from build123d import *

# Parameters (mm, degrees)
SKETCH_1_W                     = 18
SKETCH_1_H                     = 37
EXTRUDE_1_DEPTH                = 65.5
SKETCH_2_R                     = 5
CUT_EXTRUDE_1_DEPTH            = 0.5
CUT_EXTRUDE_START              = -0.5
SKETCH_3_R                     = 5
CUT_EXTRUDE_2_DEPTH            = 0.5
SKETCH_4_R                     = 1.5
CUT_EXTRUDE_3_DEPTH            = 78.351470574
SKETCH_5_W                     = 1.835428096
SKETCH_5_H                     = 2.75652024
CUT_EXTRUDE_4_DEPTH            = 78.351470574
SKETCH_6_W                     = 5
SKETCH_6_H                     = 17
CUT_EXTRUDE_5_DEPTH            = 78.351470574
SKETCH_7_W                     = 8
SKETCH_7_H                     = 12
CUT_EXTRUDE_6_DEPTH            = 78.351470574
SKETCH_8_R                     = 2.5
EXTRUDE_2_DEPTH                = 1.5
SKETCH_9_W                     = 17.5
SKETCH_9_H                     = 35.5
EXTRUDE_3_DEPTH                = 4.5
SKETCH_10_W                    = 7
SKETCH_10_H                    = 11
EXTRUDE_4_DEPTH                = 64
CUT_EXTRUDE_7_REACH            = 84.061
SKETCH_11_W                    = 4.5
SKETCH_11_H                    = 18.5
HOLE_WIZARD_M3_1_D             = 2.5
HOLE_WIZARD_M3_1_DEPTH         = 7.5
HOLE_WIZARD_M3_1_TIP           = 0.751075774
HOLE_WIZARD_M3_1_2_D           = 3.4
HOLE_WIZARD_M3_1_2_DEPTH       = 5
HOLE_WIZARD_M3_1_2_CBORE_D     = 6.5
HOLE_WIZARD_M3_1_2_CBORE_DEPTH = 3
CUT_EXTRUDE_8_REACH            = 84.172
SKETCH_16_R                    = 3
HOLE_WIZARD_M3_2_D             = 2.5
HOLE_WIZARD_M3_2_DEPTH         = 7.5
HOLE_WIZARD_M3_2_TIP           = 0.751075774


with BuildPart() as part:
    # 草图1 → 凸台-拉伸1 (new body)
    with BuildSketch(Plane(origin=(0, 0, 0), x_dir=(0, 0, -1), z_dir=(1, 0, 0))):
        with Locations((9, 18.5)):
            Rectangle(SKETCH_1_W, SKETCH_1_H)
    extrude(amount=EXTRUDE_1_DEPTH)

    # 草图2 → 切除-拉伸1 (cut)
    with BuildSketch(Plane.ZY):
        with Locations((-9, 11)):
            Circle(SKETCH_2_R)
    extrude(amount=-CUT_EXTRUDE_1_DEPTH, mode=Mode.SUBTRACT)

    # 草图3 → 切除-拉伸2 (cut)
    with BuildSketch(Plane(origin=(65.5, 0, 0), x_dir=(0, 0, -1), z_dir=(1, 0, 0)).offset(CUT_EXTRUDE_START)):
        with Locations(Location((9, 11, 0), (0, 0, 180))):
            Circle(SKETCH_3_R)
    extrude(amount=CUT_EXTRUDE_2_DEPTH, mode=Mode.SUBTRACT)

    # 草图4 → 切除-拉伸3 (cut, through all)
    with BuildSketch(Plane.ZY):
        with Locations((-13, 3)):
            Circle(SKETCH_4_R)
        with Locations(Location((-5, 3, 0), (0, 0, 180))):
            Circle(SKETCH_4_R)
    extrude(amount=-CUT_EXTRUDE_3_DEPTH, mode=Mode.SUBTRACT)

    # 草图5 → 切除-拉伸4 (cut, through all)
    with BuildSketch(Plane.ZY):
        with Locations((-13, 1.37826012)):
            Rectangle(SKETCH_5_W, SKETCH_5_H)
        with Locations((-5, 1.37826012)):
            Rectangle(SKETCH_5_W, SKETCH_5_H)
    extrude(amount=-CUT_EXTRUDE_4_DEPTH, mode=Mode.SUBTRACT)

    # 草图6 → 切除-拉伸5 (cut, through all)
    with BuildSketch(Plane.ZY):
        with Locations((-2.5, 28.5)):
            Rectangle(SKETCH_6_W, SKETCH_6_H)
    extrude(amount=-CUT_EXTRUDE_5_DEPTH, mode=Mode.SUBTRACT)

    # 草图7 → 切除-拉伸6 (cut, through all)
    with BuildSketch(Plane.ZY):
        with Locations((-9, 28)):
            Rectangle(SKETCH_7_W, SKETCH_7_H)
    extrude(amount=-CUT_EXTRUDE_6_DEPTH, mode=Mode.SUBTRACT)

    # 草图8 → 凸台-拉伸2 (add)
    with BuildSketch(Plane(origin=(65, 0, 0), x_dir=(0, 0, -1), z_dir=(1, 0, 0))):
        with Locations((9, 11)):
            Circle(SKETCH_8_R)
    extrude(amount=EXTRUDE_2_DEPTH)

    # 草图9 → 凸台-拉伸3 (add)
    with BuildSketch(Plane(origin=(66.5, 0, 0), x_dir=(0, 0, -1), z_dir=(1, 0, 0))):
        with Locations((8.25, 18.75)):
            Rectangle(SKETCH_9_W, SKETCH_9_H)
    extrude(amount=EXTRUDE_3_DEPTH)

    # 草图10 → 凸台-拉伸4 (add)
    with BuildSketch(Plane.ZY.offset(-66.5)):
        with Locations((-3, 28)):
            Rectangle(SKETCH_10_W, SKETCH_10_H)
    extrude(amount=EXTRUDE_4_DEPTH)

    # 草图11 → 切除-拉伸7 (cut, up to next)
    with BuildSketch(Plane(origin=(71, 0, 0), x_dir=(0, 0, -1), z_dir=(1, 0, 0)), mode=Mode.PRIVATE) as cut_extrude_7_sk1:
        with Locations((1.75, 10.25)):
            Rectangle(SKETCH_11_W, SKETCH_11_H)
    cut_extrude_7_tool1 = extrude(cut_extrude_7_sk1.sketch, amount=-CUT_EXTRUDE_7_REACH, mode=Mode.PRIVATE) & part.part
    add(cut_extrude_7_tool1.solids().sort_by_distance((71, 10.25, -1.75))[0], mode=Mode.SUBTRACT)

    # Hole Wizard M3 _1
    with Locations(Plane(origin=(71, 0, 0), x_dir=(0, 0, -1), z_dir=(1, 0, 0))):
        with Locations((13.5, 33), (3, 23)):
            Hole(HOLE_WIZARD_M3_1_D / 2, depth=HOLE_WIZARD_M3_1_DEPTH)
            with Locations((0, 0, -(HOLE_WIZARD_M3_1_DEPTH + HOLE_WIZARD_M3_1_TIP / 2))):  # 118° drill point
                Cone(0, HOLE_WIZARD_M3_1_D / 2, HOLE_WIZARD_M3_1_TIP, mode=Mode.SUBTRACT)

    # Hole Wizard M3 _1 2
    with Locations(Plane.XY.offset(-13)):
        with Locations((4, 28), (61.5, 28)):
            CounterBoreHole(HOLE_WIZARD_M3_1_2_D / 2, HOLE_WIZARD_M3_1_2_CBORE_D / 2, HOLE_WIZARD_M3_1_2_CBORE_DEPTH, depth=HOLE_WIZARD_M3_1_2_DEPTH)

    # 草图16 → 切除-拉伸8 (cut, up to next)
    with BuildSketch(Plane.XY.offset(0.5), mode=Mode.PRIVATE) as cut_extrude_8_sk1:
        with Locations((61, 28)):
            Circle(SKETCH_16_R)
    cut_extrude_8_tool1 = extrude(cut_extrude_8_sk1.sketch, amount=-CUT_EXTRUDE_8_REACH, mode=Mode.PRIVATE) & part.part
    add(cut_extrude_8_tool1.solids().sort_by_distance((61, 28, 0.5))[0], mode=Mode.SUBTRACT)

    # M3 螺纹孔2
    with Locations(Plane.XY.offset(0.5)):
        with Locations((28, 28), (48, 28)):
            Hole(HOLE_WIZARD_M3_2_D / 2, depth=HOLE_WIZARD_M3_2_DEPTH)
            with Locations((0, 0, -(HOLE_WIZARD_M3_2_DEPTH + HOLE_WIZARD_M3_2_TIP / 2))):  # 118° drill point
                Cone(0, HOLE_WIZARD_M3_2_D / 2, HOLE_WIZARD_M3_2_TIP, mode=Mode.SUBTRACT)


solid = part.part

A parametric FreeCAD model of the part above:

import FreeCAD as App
import Part
import Sketcher

doc = App.newDocument("Part")
body = doc.addObject("PartDesign::Body", "Body")

# Sketch on YZ plane
sketch1 = body.newObject("Sketcher::SketchObject", "Sketch")
sketch1.AttachmentSupport = (doc.getObject("YZ_Plane"), [""])
sketch1.MapMode = "FlatFace"
sketch1.addGeometry(Part.LineSegment(App.Vector(37, 0, 0), App.Vector(0, 0, 0)), False)
sketch1.addGeometry(Part.LineSegment(App.Vector(0, 0, 0), App.Vector(0, -18, 0)), False)
sketch1.addGeometry(Part.LineSegment(App.Vector(0, -18, 0), App.Vector(37, -18, 0)), False)
sketch1.addGeometry(Part.LineSegment(App.Vector(37, -18, 0), App.Vector(37, 0, 0)), False)
sketch1.addConstraint(Sketcher.Constraint("Coincident", 0, 2, 1, 1))
sketch1.addConstraint(Sketcher.Constraint("Coincident", 1, 2, 2, 1))
sketch1.addConstraint(Sketcher.Constraint("Coincident", 2, 2, 3, 1))
sketch1.addConstraint(Sketcher.Constraint("Coincident", 3, 2, 0, 1))
sketch1.addConstraint(Sketcher.Constraint("Horizontal", 0))
sketch1.addConstraint(Sketcher.Constraint("Vertical", 1))
sketch1.addConstraint(Sketcher.Constraint("Horizontal", 2))
sketch1.addConstraint(Sketcher.Constraint("Vertical", 3))
sketch1.addConstraint(Sketcher.Constraint("Coincident", 0, 2, -1, 1))
sketch1.addConstraint(Sketcher.Constraint("DistanceX", 0, 2, 0, 1, 37.0))
sketch1.addConstraint(Sketcher.Constraint("DistanceY", 1, 2, 1, 1, 18.0))
pad1 = body.newObject("PartDesign::Pad", "Pad")
pad1.Profile = sketch1
pad1.Length = 65.5

# Sketch on YZ plane
sketch2 = body.newObject("Sketcher::SketchObject", "Sketch001")
sketch2.AttachmentSupport = (doc.getObject("YZ_Plane"), [""])
sketch2.MapMode = "FlatFace"
sketch2.addGeometry(Part.Circle(App.Vector(11, -9, 0), App.Vector(0, 0, 1), 5), False)
sketch2.addConstraint(Sketcher.Constraint("Diameter", 0, 10.0))
sketch2.addConstraint(Sketcher.Constraint("DistanceX", -1, 1, 0, 3, 11.0))
sketch2.addConstraint(Sketcher.Constraint("DistanceY", 0, 3, -1, 1, 9.0))
pocket1 = body.newObject("PartDesign::Pocket", "Pocket")
pocket1.Profile = sketch2
pocket1.Length = 0.5
pocket1.Reversed = True

# Sketch on YZ plane
sketch3 = body.newObject("Sketcher::SketchObject", "Sketch002")
sketch3.AttachmentSupport = (doc.getObject("YZ_Plane"), [""])
sketch3.MapMode = "FlatFace"
sketch3.AttachmentOffset = App.Placement(App.Vector(0, 0, 65), App.Rotation())
sketch3.addGeometry(Part.Circle(App.Vector(11, -9, 0), App.Vector(0, 0, 1), 5), False)
sketch3.addConstraint(Sketcher.Constraint("Diameter", 0, 10.0))
sketch3.addConstraint(Sketcher.Constraint("DistanceX", -1, 1, 0, 3, 11.0))
sketch3.addConstraint(Sketcher.Constraint("DistanceY", 0, 3, -1, 1, 9.0))
pocket2 = body.newObject("PartDesign::Pocket", "Pocket001")
pocket2.Profile = sketch3
pocket2.Length = 0.5
pocket2.Reversed = True

# Sketch on YZ plane
sketch4 = body.newObject("Sketcher::SketchObject", "Sketch003")
sketch4.AttachmentSupport = (doc.getObject("YZ_Plane"), [""])
sketch4.MapMode = "FlatFace"
sketch4.addGeometry(Part.Circle(App.Vector(3, -13, 0), App.Vector(0, 0, 1), 1.5), False)
sketch4.addGeometry(Part.Circle(App.Vector(3, -5, 0), App.Vector(0, 0, 1), 1.5), False)
sketch4.addConstraint(Sketcher.Constraint("Equal", 0, 1))
sketch4.addConstraint(Sketcher.Constraint("Vertical", 0, 3, 1, 3))
sketch4.addConstraint(Sketcher.Constraint("Diameter", 0, 3.0))
sketch4.addConstraint(Sketcher.Constraint("DistanceX", -1, 1, 0, 3, 3.0))
sketch4.addConstraint(Sketcher.Constraint("DistanceY", 0, 3, -1, 1, 13.0))
sketch4.addConstraint(Sketcher.Constraint("DistanceY", 1, 3, -1, 1, 5.0))
pocket3 = body.newObject("PartDesign::Pocket", "Pocket002")
pocket3.Profile = sketch4
pocket3.Type = "ThroughAll"
pocket3.Reversed = True

# Sketch on YZ plane
sketch5 = body.newObject("Sketcher::SketchObject", "Sketch004")
sketch5.AttachmentSupport = (doc.getObject("YZ_Plane"), [""])
sketch5.MapMode = "FlatFace"
sketch5.addGeometry(Part.LineSegment(App.Vector(2.8, -13.9, 0), App.Vector(0, -13.9, 0)), False)
sketch5.addGeometry(Part.LineSegment(App.Vector(0, -13.9, 0), App.Vector(0, -12.1, 0)), False)
sketch5.addGeometry(Part.LineSegment(App.Vector(0, -12.1, 0), App.Vector(2.8, -12.1, 0)), False)
sketch5.addGeometry(Part.LineSegment(App.Vector(2.8, -12.1, 0), App.Vector(2.8, -13.9, 0)), False)
sketch5.addGeometry(Part.LineSegment(App.Vector(2.8, -5.9, 0), App.Vector(0, -5.9, 0)), False)
sketch5.addGeometry(Part.LineSegment(App.Vector(0, -5.9, 0), App.Vector(0, -4.1, 0)), False)
sketch5.addGeometry(Part.LineSegment(App.Vector(0, -4.1, 0), App.Vector(2.8, -4.1, 0)), False)
sketch5.addGeometry(Part.LineSegment(App.Vector(2.8, -4.1, 0), App.Vector(2.8, -5.9, 0)), False)
sketch5.addConstraint(Sketcher.Constraint("Coincident", 0, 2, 1, 1))
sketch5.addConstraint(Sketcher.Constraint("Coincident", 1, 2, 2, 1))
sketch5.addConstraint(Sketcher.Constraint("Coincident", 2, 2, 3, 1))
sketch5.addConstraint(Sketcher.Constraint("Coincident", 3, 2, 0, 1))
sketch5.addConstraint(Sketcher.Constraint("Coincident", 4, 2, 5, 1))
sketch5.addConstraint(Sketcher.Constraint("Coincident", 5, 2, 6, 1))
sketch5.addConstraint(Sketcher.Constraint("Coincident", 6, 2, 7, 1))
sketch5.addConstraint(Sketcher.Constraint("Coincident", 7, 2, 4, 1))
sketch5.addConstraint(Sketcher.Constraint("Horizontal", 0))
sketch5.addConstraint(Sketcher.Constraint("Vertical", 1))
sketch5.addConstraint(Sketcher.Constraint("Horizontal", 2))
sketch5.addConstraint(Sketcher.Constraint("Vertical", 3))
sketch5.addConstraint(Sketcher.Constraint("Horizontal", 4))
sketch5.addConstraint(Sketcher.Constraint("Vertical", 5))
sketch5.addConstraint(Sketcher.Constraint("Horizontal", 6))
sketch5.addConstraint(Sketcher.Constraint("Vertical", 7))
sketch5.addConstraint(Sketcher.Constraint("PointOnObject", 0, 2, -2))
sketch5.addConstraint(Sketcher.Constraint("PointOnObject", 4, 2, -2))
sketch5.addConstraint(Sketcher.Constraint("Vertical", 3, 2, 6, 2))
sketch5.addConstraint(Sketcher.Constraint("Equal", 3, 5))
sketch5.addConstraint(Sketcher.Constraint("DistanceY", 0, 2, 4, 2, 8.0))
sketch5.addConstraint(Sketcher.Constraint("DistanceX", 0, 2, 0, 1, 2.75652))
sketch5.addConstraint(Sketcher.Constraint("DistanceY", 1, 1, 1, 2, 1.835428))
sketch5.addConstraint(Sketcher.Constraint("DistanceY", 0, 2, -1, 1, 13.917714))
pocket4 = body.newObject("PartDesign::Pocket", "Pocket003")
pocket4.Profile = sketch5
pocket4.Type = "ThroughAll"
pocket4.Reversed = True

# Sketch on YZ plane
sketch6 = body.newObject("Sketcher::SketchObject", "Sketch005")
sketch6.AttachmentSupport = (doc.getObject("YZ_Plane"), [""])
sketch6.MapMode = "FlatFace"
sketch6.addGeometry(Part.LineSegment(App.Vector(37, -5, 0), App.Vector(20, -5, 0)), False)
sketch6.addGeometry(Part.LineSegment(App.Vector(20, -5, 0), App.Vector(20, 0, 0)), False)
sketch6.addGeometry(Part.LineSegment(App.Vector(20, 0, 0), App.Vector(37, 0, 0)), False)
sketch6.addGeometry(Part.LineSegment(App.Vector(37, 0, 0), App.Vector(37, -5, 0)), False)
sketch6.addConstraint(Sketcher.Constraint("Coincident", 0, 2, 1, 1))
sketch6.addConstraint(Sketcher.Constraint("Coincident", 1, 2, 2, 1))
sketch6.addConstraint(Sketcher.Constraint("Coincident", 2, 2, 3, 1))
sketch6.addConstraint(Sketcher.Constraint("Coincident", 3, 2, 0, 1))
sketch6.addConstraint(Sketcher.Constraint("Horizontal", 0))
sketch6.addConstraint(Sketcher.Constraint("Vertical", 1))
sketch6.addConstraint(Sketcher.Constraint("Horizontal", 2))
sketch6.addConstraint(Sketcher.Constraint("Vertical", 3))
sketch6.addConstraint(Sketcher.Constraint("PointOnObject", 1, 2, -1))
sketch6.addConstraint(Sketcher.Constraint("DistanceX", 0, 2, 0, 1, 17.0))
sketch6.addConstraint(Sketcher.Constraint("DistanceY", 1, 1, 1, 2, 5.0))
sketch6.addConstraint(Sketcher.Constraint("DistanceX", -1, 1, 0, 2, 20.0))
pocket5 = body.newObject("PartDesign::Pocket", "Pocket004")
pocket5.Profile = sketch6
pocket5.Type = "ThroughAll"
pocket5.Reversed = True

# Sketch on YZ plane
sketch7 = body.newObject("Sketcher::SketchObject", "Sketch006")
sketch7.AttachmentSupport = (doc.getObject("YZ_Plane"), [""])
sketch7.MapMode = "FlatFace"
sketch7.addGeometry(Part.LineSegment(App.Vector(34, -13, 0), App.Vector(22, -13, 0)), False)
sketch7.addGeometry(Part.LineSegment(App.Vector(22, -13, 0), App.Vector(22, -5, 0)), False)
sketch7.addGeometry(Part.LineSegment(App.Vector(22, -5, 0), App.Vector(34, -5, 0)), False)
sketch7.addGeometry(Part.LineSegment(App.Vector(34, -5, 0), App.Vector(34, -13, 0)), False)
sketch7.addConstraint(Sketcher.Constraint("Coincident", 0, 2, 1, 1))
sketch7.addConstraint(Sketcher.Constraint("Coincident", 1, 2, 2, 1))
sketch7.addConstraint(Sketcher.Constraint("Coincident", 2, 2, 3, 1))
sketch7.addConstraint(Sketcher.Constraint("Coincident", 3, 2, 0, 1))
sketch7.addConstraint(Sketcher.Constraint("Horizontal", 0))
sketch7.addConstraint(Sketcher.Constraint("Vertical", 1))
sketch7.addConstraint(Sketcher.Constraint("Horizontal", 2))
sketch7.addConstraint(Sketcher.Constraint("Vertical", 3))
sketch7.addConstraint(Sketcher.Constraint("DistanceX", 0, 2, 0, 1, 12.0))
sketch7.addConstraint(Sketcher.Constraint("DistanceY", 1, 1, 1, 2, 8.0))
sketch7.addConstraint(Sketcher.Constraint("DistanceX", -1, 1, 0, 2, 22.0))
sketch7.addConstraint(Sketcher.Constraint("DistanceY", 0, 2, -1, 1, 13.0))
pocket6 = body.newObject("PartDesign::Pocket", "Pocket005")
pocket6.Profile = sketch7
pocket6.Type = "ThroughAll"
pocket6.Reversed = True

# Sketch on YZ plane
sketch8 = body.newObject("Sketcher::SketchObject", "Sketch007")
sketch8.AttachmentSupport = (doc.getObject("YZ_Plane"), [""])
sketch8.MapMode = "FlatFace"
sketch8.AttachmentOffset = App.Placement(App.Vector(0, 0, 65), App.Rotation())
sketch8.addGeometry(Part.Circle(App.Vector(11, -9, 0), App.Vector(0, 0, 1), 2.5), False)
sketch8.addConstraint(Sketcher.Constraint("Diameter", 0, 5.0))
sketch8.addConstraint(Sketcher.Constraint("DistanceX", -1, 1, 0, 3, 11.0))
sketch8.addConstraint(Sketcher.Constraint("DistanceY", 0, 3, -1, 1, 9.0))
pad2 = body.newObject("PartDesign::Pad", "Pad001")
pad2.Profile = sketch8
pad2.Length = 1.5

# Sketch on YZ plane
sketch9 = body.newObject("Sketcher::SketchObject", "Sketch008")
sketch9.AttachmentSupport = (doc.getObject("YZ_Plane"), [""])
sketch9.MapMode = "FlatFace"
sketch9.AttachmentOffset = App.Placement(App.Vector(0, 0, 66.5), App.Rotation())
sketch9.addGeometry(Part.LineSegment(App.Vector(36, 0, 0), App.Vector(1, 0, 0)), False)
sketch9.addGeometry(Part.LineSegment(App.Vector(1, 0, 0), App.Vector(1, -17, 0)), False)
sketch9.addGeometry(Part.LineSegment(App.Vector(1, -17, 0), App.Vector(36, -17, 0)), False)
sketch9.addGeometry(Part.LineSegment(App.Vector(36, -17, 0), App.Vector(36, 0, 0)), False)
sketch9.addConstraint(Sketcher.Constraint("Coincident", 0, 2, 1, 1))
sketch9.addConstraint(Sketcher.Constraint("Coincident", 1, 2, 2, 1))
sketch9.addConstraint(Sketcher.Constraint("Coincident", 2, 2, 3, 1))
sketch9.addConstraint(Sketcher.Constraint("Coincident", 3, 2, 0, 1))
sketch9.addConstraint(Sketcher.Constraint("Horizontal", 0))
sketch9.addConstraint(Sketcher.Constraint("Vertical", 1))
sketch9.addConstraint(Sketcher.Constraint("Horizontal", 2))
sketch9.addConstraint(Sketcher.Constraint("Vertical", 3))
sketch9.addConstraint(Sketcher.Constraint("DistanceX", 0, 2, 0, 1, 35.5))
sketch9.addConstraint(Sketcher.Constraint("DistanceY", 1, 2, 1, 1, 17.5))
sketch9.addConstraint(Sketcher.Constraint("DistanceX", -1, 1, 0, 2, 1.0))
sketch9.addConstraint(Sketcher.Constraint("DistanceY", 1, 2, -1, 1, 17.0))
pad3 = body.newObject("PartDesign::Pad", "Pad002")
pad3.Profile = sketch9
pad3.Length = 4.5

# Sketch on YZ plane
sketch10 = body.newObject("Sketcher::SketchObject", "Sketch009")
sketch10.AttachmentSupport = (doc.getObject("YZ_Plane"), [""])
sketch10.MapMode = "FlatFace"
sketch10.AttachmentOffset = App.Placement(App.Vector(0, 0, 66.5), App.Rotation())
sketch10.addGeometry(Part.LineSegment(App.Vector(34, -6, 0), App.Vector(22, -6, 0)), False)
sketch10.addGeometry(Part.LineSegment(App.Vector(22, -6, 0), App.Vector(22, 0, 0)), False)
sketch10.addGeometry(Part.LineSegment(App.Vector(22, 0, 0), App.Vector(34, 0, 0)), False)
sketch10.addGeometry(Part.LineSegment(App.Vector(34, 0, 0), App.Vector(34, -6, 0)), False)
sketch10.addConstraint(Sketcher.Constraint("Coincident", 0, 2, 1, 1))
sketch10.addConstraint(Sketcher.Constraint("Coincident", 1, 2, 2, 1))
sketch10.addConstraint(Sketcher.Constraint("Coincident", 2, 2, 3, 1))
sketch10.addConstraint(Sketcher.Constraint("Coincident", 3, 2, 0, 1))
sketch10.addConstraint(Sketcher.Constraint("Horizontal", 0))
sketch10.addConstraint(Sketcher.Constraint("Vertical", 1))
sketch10.addConstraint(Sketcher.Constraint("Horizontal", 2))
sketch10.addConstraint(Sketcher.Constraint("Vertical", 3))
sketch10.addConstraint(Sketcher.Constraint("DistanceX", 0, 2, 0, 1, 11.0))
sketch10.addConstraint(Sketcher.Constraint("DistanceY", 1, 1, 1, 2, 7.0))
sketch10.addConstraint(Sketcher.Constraint("DistanceX", -1, 1, 0, 2, 22.5))
sketch10.addConstraint(Sketcher.Constraint("DistanceY", 0, 2, -1, 1, 6.5))
pad4 = body.newObject("PartDesign::Pad", "Pad003")
pad4.Profile = sketch10
pad4.Length = 64
pad4.Reversed = True

# Sketch on YZ plane
sketch11 = body.newObject("Sketcher::SketchObject", "Sketch010")
sketch11.AttachmentSupport = (doc.getObject("YZ_Plane"), [""])
sketch11.MapMode = "FlatFace"
sketch11.AttachmentOffset = App.Placement(App.Vector(0, 0, 71), App.Rotation())
sketch11.addGeometry(Part.LineSegment(App.Vector(19.5, 0.5, 0), App.Vector(1, 0.5, 0)), False)
sketch11.addGeometry(Part.LineSegment(App.Vector(1, 0.5, 0), App.Vector(1, -4, 0)), False)
sketch11.addGeometry(Part.LineSegment(App.Vector(1, -4, 0), App.Vector(19.5, -4, 0)), False)
sketch11.addGeometry(Part.LineSegment(App.Vector(19.5, -4, 0), App.Vector(19.5, 0.5, 0)), False)
sketch11.addConstraint(Sketcher.Constraint("Coincident", 0, 2, 1, 1))
sketch11.addConstraint(Sketcher.Constraint("Coincident", 1, 2, 2, 1))
sketch11.addConstraint(Sketcher.Constraint("Coincident", 2, 2, 3, 1))
sketch11.addConstraint(Sketcher.Constraint("Coincident", 3, 2, 0, 1))
sketch11.addConstraint(Sketcher.Constraint("Horizontal", 0))
sketch11.addConstraint(Sketcher.Constraint("Vertical", 1))
sketch11.addConstraint(Sketcher.Constraint("Horizontal", 2))
sketch11.addConstraint(Sketcher.Constraint("Vertical", 3))
sketch11.addConstraint(Sketcher.Constraint("DistanceX", 0, 2, 0, 1, 18.5))
sketch11.addConstraint(Sketcher.Constraint("DistanceY", 1, 2, 1, 1, 4.5))
sketch11.addConstraint(Sketcher.Constraint("DistanceX", -1, 1, 0, 2, 1.0))
sketch11.addConstraint(Sketcher.Constraint("DistanceY", 1, 2, -1, 1, 4.0))
pocket7 = body.newObject("PartDesign::Pocket", "Pocket006")
pocket7.Profile = sketch11
pocket7.Type = "UpToFirst"

# Sketch on YZ plane
sketch12 = body.newObject("Sketcher::SketchObject", "Sketch011")
sketch12.AttachmentSupport = (doc.getObject("YZ_Plane"), [""])
sketch12.MapMode = "FlatFace"
sketch12.AttachmentOffset = App.Placement(App.Vector(0, 0, 71), App.Rotation())
sketch12.addGeometry(Part.Circle(App.Vector(33, -13.5, 0), App.Vector(0, 0, 1), 1.2), False)
sketch12.addGeometry(Part.Circle(App.Vector(23, -3, 0), App.Vector(0, 0, 1), 1.2), False)
sketch12.addConstraint(Sketcher.Constraint("Equal", 0, 1))
sketch12.addConstraint(Sketcher.Constraint("Diameter", 0, 2.5))
sketch12.addConstraint(Sketcher.Constraint("DistanceX", -1, 1, 0, 3, 33.0))
sketch12.addConstraint(Sketcher.Constraint("DistanceX", -1, 1, 1, 3, 23.0))
sketch12.addConstraint(Sketcher.Constraint("DistanceY", 1, 3, -1, 1, 3.0))
sketch12.addConstraint(Sketcher.Constraint("DistanceY", 0, 3, -1, 1, 13.5))
doc.recompute()
hole = body.newObject("PartDesign::Hole", "Hole")
hole.Profile = sketch12
hole.ThreadType = "None"
hole.Diameter = 2.5
hole.DepthType = "Dimension"
hole.Depth = 7.5
hole.DrillPoint = "Angled"
hole.DrillPointAngle = 118

# Sketch on XY plane
sketch13 = body.newObject("Sketcher::SketchObject", "Sketch012")
sketch13.AttachmentSupport = (doc.getObject("XY_Plane"), [""])
sketch13.MapMode = "FlatFace"
sketch13.AttachmentOffset = App.Placement(App.Vector(0, 0, -13), App.Rotation())
sketch13.addGeometry(Part.Circle(App.Vector(4, 28, 0), App.Vector(0, 0, 1), 1.7), False)
sketch13.addGeometry(Part.Circle(App.Vector(61.5, 28, 0), App.Vector(0, 0, 1), 1.7), False)
sketch13.addConstraint(Sketcher.Constraint("Equal", 0, 1))
sketch13.addConstraint(Sketcher.Constraint("Horizontal", 0, 3, 1, 3))
sketch13.addConstraint(Sketcher.Constraint("Diameter", 0, 3.4))
sketch13.addConstraint(Sketcher.Constraint("DistanceX", -1, 1, 0, 3, 4.0))
sketch13.addConstraint(Sketcher.Constraint("DistanceY", -1, 1, 0, 3, 28.0))
sketch13.addConstraint(Sketcher.Constraint("DistanceX", -1, 1, 1, 3, 61.5))
doc.recompute()
hole2 = body.newObject("PartDesign::Hole", "Hole001")
hole2.Profile = sketch13
hole2.ThreadType = "None"
hole2.Diameter = 3.4
hole2.DepthType = "Dimension"
hole2.Depth = 5
hole2.DrillPoint = "Flat"
hole2.HoleCutType = "Counterbore"
hole2.HoleCutDiameter = 6.5
hole2.HoleCutDepth = 3

# Sketch on XY plane
sketch14 = body.newObject("Sketcher::SketchObject", "Sketch013")
sketch14.AttachmentSupport = (doc.getObject("XY_Plane"), [""])
sketch14.MapMode = "FlatFace"
sketch14.AttachmentOffset = App.Placement(App.Vector(0, 0, 0.5), App.Rotation())
sketch14.addGeometry(Part.Circle(App.Vector(61, 28, 0), App.Vector(0, 0, 1), 3), False)
sketch14.addConstraint(Sketcher.Constraint("Diameter", 0, 6.0))
sketch14.addConstraint(Sketcher.Constraint("DistanceX", -1, 1, 0, 3, 61.0))
sketch14.addConstraint(Sketcher.Constraint("DistanceY", -1, 1, 0, 3, 28.0))
pocket8 = body.newObject("PartDesign::Pocket", "Pocket007")
pocket8.Profile = sketch14
pocket8.Type = "UpToFirst"

# Sketch on XY plane
sketch15 = body.newObject("Sketcher::SketchObject", "Sketch014")
sketch15.AttachmentSupport = (doc.getObject("XY_Plane"), [""])
sketch15.MapMode = "FlatFace"
sketch15.AttachmentOffset = App.Placement(App.Vector(0, 0, 0.5), App.Rotation())
sketch15.addGeometry(Part.Circle(App.Vector(28, 28, 0), App.Vector(0, 0, 1), 1.2), False)
sketch15.addGeometry(Part.Circle(App.Vector(48, 28, 0), App.Vector(0, 0, 1), 1.2), False)
sketch15.addConstraint(Sketcher.Constraint("Equal", 0, 1))
sketch15.addConstraint(Sketcher.Constraint("Horizontal", 0, 3, 1, 3))
sketch15.addConstraint(Sketcher.Constraint("Diameter", 0, 2.5))
sketch15.addConstraint(Sketcher.Constraint("DistanceX", -1, 1, 0, 3, 28.0))
sketch15.addConstraint(Sketcher.Constraint("DistanceY", -1, 1, 0, 3, 28.0))
sketch15.addConstraint(Sketcher.Constraint("DistanceX", -1, 1, 1, 3, 48.0))
doc.recompute()
hole3 = body.newObject("PartDesign::Hole", "Hole002")
hole3.Profile = sketch15
hole3.ThreadType = "None"
hole3.Diameter = 2.5
hole3.DepthType = "Dimension"
hole3.Depth = 7.5
hole3.DrillPoint = "Angled"
hole3.DrillPointAngle = 118

doc.recompute()
